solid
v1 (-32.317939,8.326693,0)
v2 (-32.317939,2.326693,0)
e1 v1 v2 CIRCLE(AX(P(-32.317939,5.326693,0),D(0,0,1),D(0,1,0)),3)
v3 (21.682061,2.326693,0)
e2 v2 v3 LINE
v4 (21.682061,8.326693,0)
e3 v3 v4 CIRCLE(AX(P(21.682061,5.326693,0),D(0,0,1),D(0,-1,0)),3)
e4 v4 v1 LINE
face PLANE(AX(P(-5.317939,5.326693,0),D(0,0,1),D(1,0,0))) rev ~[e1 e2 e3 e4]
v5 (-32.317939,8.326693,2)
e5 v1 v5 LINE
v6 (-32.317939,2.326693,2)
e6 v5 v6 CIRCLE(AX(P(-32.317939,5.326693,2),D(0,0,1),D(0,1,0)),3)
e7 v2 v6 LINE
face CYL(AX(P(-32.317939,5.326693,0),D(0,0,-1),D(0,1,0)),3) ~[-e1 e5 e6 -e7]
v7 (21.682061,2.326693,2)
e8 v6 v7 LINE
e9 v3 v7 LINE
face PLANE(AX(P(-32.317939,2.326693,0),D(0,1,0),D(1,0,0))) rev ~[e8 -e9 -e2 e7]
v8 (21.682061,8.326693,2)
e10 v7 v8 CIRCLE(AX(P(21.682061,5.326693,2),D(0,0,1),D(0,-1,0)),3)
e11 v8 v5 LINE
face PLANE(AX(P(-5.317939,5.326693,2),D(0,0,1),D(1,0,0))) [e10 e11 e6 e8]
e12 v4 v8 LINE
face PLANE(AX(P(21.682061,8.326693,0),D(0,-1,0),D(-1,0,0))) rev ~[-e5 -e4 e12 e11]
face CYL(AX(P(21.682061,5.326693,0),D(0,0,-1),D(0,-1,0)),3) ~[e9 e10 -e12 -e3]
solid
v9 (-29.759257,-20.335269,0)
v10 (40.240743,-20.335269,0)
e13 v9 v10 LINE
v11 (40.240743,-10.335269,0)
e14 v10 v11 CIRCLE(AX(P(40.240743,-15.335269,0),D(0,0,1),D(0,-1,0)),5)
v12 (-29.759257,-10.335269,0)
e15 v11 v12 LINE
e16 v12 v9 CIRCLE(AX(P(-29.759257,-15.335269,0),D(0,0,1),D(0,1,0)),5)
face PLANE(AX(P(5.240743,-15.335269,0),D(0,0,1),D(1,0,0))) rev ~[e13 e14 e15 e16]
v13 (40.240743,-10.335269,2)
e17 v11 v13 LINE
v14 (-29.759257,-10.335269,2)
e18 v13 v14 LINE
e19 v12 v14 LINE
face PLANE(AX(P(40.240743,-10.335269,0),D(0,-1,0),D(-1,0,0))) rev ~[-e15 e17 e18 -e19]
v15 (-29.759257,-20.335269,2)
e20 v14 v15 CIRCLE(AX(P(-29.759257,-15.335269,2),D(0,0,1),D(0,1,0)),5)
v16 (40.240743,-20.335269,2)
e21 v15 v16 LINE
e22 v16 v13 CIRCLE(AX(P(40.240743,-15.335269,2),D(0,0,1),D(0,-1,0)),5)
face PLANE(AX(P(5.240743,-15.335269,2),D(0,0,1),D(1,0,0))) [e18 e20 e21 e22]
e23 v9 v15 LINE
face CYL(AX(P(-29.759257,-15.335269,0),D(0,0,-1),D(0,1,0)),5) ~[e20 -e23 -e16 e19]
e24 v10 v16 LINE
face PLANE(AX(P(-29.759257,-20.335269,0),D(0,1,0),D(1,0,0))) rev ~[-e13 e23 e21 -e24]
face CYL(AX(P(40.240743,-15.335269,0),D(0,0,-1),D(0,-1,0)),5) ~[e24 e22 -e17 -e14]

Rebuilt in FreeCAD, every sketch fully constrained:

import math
import FreeCAD as App
import Part
import Sketcher

V = App.Vector
Q = App.Units.Quantity

doc = App.newDocument("Part")
params = doc.addObject("Spreadsheet::Sheet", "Params")
for row, (alias, value) in enumerate([
    ("sketch1_radius", "3 mm"),
    ("sketch1_width", "54 mm"),
    ("pad1_length", "2 mm"),
    ("sketch2_radius", "5 mm"),
    ("sketch2_width", "70 mm"),
    ("pad2_length", "2 mm"),
], start=1):
    params.set(f"A{row}", alias)
    params.set(f"B{row}", "=" + value)
    params.setAlias(f"B{row}", alias)

body = doc.addObject("PartDesign::Body", "Body")

# Sketch on XY plane
sketch1 = doc.addObject("Sketcher::SketchObject", "Sketch")
body.addObject(sketch1)
sketch1.AttachmentSupport = (doc.XY_Plane, [""])
sketch1.MapMode = "FlatFace"
sketch1.addGeometry([
    Part.LineSegment(V(21.682061, 8.326693, 0), V(-32.317939, 8.326693, 0)),
    Part.ArcOfCircle(Part.Circle(V(-32.317939, 5.326693, 0), V(0, 0, 1), 3), math.radians(90), math.radians(270)),
    Part.LineSegment(V(-32.317939, 2.326693, 0), V(21.682061, 2.326693, 0)),
    Part.ArcOfCircle(Part.Circle(V(21.682061, 5.326693, 0), V(0, 0, 1), 3), math.radians(-90), math.radians(90)),
], False)
sketch1.addConstraint([
    Sketcher.Constraint("Tangent", 0, 2, 1, 1),
    Sketcher.Constraint("Tangent", 1, 2, 2, 1),
    Sketcher.Constraint("Tangent", 2, 2, 3, 1),
    Sketcher.Constraint("Tangent", 3, 2, 0, 1),
    Sketcher.Constraint("Horizontal", 0),
    Sketcher.Constraint("Horizontal", 2),
    Sketcher.Constraint("Radius", 1, Q("3 mm")),
    Sketcher.Constraint("DistanceX", 0, 2, 0, 1, Q("54 mm")),
    Sketcher.Constraint("DistanceX", 1, 3, -1, 1, Q("32.317939 mm")),
    Sketcher.Constraint("DistanceY", -1, 1, 1, 3, Q("5.326693 mm")),
])
sketch1.setExpression("Constraints[6]", "Params.sketch1_radius")
sketch1.setExpression("Constraints[7]", "Params.sketch1_width")
pad1 = doc.addObject("PartDesign::Pad", "Pad")
body.addObject(pad1)
pad1.Profile = sketch1
pad1.setExpression("Length", "Params.pad1_length")
body2 = doc.addObject("PartDesign::Body", "Body001")

# Sketch on XY plane
sketch2 = doc.addObject("Sketcher::SketchObject", "Sketch001")
body2.addObject(sketch2)
sketch2.AttachmentSupport = (doc.getObject("XY_Plane001"), [""])
sketch2.MapMode = "FlatFace"
sketch2.addGeometry([
    Part.LineSegment(V(40.240743, -10.335269, 0), V(-29.759257, -10.335269, 0)),
    Part.ArcOfCircle(Part.Circle(V(-29.759257, -15.335269, 0), V(0, 0, 1), 5), math.radians(90), math.radians(270)),
    Part.LineSegment(V(-29.759257, -20.335269, 0), V(40.240743, -20.335269, 0)),
    Part.ArcOfCircle(Part.Circle(V(40.240743, -15.335269, 0), V(0, 0, 1), 5), math.radians(-90), math.radians(90)),
], False)
sketch2.addConstraint([
    Sketcher.Constraint("Tangent", 0, 2, 1, 1),
    Sketcher.Constraint("Tangent", 1, 2, 2, 1),
    Sketcher.Constraint("Tangent", 2, 2, 3, 1),
    Sketcher.Constraint("Tangent", 3, 2, 0, 1),
    Sketcher.Constraint("Horizontal", 0),
    Sketcher.Constraint("Horizontal", 2),
    Sketcher.Constraint("Radius", 1, Q("5 mm")),
    Sketcher.Constraint("DistanceX", 0, 2, 0, 1, Q("70 mm")),
    Sketcher.Constraint("DistanceY", 1, 3, -1, 1, Q("15.335269 mm")),
    Sketcher.Constraint("DistanceX", 1, 3, -1, 1, Q("29.759257 mm")),
])
sketch2.setExpression("Constraints[6]", "Params.sketch2_radius")
sketch2.setExpression("Constraints[7]", "Params.sketch2_width")
pad2 = doc.addObject("PartDesign::Pad", "Pad001")
body2.addObject(pad2)
pad2.Profile = sketch2
pad2.setExpression("Length", "Params.pad2_length")

doc.recompute()
